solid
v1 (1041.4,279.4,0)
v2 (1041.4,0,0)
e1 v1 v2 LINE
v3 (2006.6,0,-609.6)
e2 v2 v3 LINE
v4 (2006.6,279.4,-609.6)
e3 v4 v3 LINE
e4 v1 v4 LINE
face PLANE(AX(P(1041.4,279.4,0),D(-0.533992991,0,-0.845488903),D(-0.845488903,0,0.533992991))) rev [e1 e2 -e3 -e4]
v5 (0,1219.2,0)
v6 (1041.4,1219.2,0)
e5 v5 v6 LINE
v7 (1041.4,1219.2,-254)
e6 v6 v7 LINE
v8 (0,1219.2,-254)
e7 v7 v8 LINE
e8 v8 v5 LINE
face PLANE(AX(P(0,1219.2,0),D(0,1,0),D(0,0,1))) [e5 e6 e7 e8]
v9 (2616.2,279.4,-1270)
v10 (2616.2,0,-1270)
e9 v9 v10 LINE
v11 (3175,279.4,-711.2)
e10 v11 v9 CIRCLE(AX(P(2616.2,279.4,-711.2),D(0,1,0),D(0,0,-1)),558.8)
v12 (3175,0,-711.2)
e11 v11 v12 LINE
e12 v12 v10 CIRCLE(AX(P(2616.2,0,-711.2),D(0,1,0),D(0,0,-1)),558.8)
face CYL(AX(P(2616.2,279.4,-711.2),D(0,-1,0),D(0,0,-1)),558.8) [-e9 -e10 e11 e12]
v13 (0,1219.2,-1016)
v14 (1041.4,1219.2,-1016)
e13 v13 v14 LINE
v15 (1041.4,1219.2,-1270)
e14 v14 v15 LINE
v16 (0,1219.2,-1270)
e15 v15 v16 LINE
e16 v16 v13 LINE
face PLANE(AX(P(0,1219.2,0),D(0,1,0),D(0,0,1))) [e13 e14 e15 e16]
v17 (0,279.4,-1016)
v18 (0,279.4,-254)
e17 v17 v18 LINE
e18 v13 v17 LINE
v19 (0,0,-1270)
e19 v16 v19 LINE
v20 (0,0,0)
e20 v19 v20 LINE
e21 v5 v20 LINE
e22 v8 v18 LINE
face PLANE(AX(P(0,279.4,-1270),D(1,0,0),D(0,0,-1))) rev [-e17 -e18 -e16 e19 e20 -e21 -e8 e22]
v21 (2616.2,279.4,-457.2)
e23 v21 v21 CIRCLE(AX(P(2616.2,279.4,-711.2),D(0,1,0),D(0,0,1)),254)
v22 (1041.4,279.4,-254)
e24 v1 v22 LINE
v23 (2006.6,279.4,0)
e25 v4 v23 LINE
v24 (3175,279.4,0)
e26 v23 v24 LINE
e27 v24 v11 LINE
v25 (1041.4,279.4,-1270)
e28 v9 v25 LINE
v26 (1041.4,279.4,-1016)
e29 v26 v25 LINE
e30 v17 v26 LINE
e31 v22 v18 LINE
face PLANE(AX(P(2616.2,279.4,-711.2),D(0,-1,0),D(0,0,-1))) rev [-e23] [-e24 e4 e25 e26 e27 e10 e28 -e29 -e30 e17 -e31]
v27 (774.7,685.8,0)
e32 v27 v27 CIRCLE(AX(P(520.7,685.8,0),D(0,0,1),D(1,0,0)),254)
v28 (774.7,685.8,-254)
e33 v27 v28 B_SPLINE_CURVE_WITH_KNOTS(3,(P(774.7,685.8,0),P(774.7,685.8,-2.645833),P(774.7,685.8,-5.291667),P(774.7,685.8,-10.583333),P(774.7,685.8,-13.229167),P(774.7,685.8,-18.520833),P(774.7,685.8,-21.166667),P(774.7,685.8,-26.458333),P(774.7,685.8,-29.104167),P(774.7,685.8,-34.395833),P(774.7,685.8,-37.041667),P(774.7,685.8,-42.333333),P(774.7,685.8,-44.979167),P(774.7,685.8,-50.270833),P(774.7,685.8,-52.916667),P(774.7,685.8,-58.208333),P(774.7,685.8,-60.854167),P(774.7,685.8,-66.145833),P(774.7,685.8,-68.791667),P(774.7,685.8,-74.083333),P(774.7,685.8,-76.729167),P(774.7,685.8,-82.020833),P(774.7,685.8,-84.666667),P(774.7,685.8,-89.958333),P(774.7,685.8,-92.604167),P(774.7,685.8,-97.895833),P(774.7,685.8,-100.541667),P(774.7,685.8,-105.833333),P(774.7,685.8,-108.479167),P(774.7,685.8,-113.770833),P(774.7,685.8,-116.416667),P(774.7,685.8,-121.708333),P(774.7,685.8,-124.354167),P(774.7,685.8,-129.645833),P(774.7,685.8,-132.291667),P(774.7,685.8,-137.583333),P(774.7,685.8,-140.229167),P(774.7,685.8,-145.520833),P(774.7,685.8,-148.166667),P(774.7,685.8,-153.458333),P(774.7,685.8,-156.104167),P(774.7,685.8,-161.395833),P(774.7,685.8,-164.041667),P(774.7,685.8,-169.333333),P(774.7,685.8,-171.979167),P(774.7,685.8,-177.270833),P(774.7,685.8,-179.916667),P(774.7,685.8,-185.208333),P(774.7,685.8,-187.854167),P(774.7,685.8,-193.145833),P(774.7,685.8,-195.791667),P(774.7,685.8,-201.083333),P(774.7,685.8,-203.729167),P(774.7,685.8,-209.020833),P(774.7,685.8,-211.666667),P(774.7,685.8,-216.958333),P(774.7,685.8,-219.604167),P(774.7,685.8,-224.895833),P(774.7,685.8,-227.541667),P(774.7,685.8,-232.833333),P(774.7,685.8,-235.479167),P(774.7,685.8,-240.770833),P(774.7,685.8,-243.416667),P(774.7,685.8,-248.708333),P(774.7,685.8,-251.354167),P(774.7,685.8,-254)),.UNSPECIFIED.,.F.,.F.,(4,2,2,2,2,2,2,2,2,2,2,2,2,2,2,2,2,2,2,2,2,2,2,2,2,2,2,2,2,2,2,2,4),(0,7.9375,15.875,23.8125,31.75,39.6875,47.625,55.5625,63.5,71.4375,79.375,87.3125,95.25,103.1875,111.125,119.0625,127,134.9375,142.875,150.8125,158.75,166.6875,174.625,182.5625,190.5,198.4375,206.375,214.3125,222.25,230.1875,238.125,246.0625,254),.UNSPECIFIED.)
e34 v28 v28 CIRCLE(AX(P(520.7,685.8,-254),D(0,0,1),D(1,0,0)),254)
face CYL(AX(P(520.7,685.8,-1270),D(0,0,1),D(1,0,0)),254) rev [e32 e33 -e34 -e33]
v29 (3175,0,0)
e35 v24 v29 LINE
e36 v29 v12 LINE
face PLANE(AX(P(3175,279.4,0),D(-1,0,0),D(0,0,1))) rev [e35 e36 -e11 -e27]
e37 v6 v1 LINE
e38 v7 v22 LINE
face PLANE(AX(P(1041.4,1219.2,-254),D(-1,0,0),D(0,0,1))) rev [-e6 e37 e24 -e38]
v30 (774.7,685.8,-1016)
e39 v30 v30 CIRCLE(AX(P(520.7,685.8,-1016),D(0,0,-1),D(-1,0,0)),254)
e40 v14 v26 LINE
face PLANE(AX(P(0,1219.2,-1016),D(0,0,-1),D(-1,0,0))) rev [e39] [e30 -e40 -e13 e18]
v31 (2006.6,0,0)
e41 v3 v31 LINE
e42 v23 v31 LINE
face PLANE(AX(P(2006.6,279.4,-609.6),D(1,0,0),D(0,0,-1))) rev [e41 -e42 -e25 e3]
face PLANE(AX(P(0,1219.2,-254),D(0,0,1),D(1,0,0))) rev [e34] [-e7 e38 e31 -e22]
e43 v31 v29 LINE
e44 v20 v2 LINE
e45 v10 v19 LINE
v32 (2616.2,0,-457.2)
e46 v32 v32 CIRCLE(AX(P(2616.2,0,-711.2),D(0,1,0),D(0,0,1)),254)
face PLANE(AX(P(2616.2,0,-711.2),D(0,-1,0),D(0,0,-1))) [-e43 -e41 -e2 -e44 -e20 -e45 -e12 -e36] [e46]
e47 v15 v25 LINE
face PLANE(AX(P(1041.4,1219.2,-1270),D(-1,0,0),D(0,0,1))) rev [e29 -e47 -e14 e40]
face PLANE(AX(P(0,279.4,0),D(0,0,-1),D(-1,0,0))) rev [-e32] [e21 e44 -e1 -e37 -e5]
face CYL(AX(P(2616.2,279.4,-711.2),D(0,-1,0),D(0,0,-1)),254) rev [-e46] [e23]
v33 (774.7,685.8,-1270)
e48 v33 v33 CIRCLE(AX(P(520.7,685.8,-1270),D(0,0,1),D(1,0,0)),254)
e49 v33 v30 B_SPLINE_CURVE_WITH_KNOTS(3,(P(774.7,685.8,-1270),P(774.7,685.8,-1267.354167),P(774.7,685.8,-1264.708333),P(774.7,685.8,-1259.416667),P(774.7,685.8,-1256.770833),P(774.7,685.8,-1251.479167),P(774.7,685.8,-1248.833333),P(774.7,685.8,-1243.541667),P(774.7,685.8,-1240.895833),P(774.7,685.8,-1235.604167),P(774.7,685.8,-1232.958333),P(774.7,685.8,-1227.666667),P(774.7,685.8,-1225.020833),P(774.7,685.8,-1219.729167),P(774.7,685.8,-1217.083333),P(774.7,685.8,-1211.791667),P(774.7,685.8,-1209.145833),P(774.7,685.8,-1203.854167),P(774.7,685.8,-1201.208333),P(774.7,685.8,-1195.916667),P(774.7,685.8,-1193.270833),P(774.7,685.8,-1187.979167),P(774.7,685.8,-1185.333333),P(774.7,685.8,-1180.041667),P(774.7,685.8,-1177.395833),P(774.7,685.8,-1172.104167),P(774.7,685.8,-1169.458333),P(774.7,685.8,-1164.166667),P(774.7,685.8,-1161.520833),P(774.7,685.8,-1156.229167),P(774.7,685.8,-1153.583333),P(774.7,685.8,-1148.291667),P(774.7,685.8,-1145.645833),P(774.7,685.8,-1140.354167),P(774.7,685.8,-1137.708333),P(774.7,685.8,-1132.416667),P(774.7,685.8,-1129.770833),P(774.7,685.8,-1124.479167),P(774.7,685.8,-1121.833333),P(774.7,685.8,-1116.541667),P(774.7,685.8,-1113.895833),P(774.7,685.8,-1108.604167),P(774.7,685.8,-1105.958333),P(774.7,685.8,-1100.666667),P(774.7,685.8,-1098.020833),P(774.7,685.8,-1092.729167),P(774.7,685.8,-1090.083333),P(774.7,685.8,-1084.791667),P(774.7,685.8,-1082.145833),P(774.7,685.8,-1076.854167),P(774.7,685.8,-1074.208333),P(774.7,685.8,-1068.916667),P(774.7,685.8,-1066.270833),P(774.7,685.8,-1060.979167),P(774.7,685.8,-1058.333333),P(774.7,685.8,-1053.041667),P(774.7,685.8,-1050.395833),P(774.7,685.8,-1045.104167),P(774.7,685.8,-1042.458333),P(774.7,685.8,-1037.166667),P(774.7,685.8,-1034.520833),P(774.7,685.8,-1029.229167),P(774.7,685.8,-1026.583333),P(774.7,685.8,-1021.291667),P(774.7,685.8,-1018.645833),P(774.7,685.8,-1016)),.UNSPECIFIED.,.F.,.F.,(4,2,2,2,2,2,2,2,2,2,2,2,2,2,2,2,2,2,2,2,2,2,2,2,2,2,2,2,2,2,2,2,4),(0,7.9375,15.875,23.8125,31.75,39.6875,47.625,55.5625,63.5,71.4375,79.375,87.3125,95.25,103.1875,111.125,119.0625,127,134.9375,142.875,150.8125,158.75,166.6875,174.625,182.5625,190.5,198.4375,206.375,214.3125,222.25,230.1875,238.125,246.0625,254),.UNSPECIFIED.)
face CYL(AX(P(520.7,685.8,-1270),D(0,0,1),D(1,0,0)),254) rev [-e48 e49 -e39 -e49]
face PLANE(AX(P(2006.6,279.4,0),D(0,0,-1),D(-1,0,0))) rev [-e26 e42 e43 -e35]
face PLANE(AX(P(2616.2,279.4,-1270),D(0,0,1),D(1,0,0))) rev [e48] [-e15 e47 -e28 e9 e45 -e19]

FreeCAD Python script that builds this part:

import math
import FreeCAD as App
import Part
import Sketcher
Q = App.Units.Quantity

doc = App.newDocument("Part")
body = doc.addObject("PartDesign::Body", "Body")

sketch1 = doc.addObject("Sketcher::SketchObject", "Sketch")
body.addObject(sketch1)
sketch1.AttachmentSupport = (doc.XZ_Plane, [""])
sketch1.MapMode = "FlatFace"
sketch1.addGeometry(Part.LineSegment(App.Vector(0, 0, 0), App.Vector(1041, 0, 0)), False)
sketch1.addGeometry(Part.LineSegment(App.Vector(1041, 0, 0), App.Vector(2007, -610, 0)), False)
sketch1.addGeometry(Part.LineSegment(App.Vector(2007, -610, 0), App.Vector(2007, 0, 0)), False)
sketch1.addGeometry(Part.LineSegment(App.Vector(2007, 0, 0), App.Vector(3175, 0, 0)), False)
sketch1.addGeometry(Part.LineSegment(App.Vector(3175, 0, 0), App.Vector(3175, -711, 0)), False)
sketch1.addGeometry(Part.ArcOfCircle(Part.Circle(App.Vector(2616, -711, 0), App.Vector(0, 0, 1), 559), math.radians(-90), math.radians(0)), False)
sketch1.addGeometry(Part.LineSegment(App.Vector(2616, -1270, 0), App.Vector(0, -1270, 0)), False)
sketch1.addGeometry(Part.LineSegment(App.Vector(0, -1270, 0), App.Vector(0, 0, 0)), False)
sketch1.addGeometry(Part.Circle(App.Vector(2616, -711, 0), App.Vector(0, 0, 1), 254), False)
sketch1.addConstraint(Sketcher.Constraint("Coincident", 0, 2, 1, 1))
sketch1.addConstraint(Sketcher.Constraint("Coincident", 1, 2, 2, 1))
sketch1.addConstraint(Sketcher.Constraint("Coincident", 2, 2, 3, 1))
sketch1.addConstraint(Sketcher.Constraint("Coincident", 3, 2, 4, 1))
sketch1.addConstraint(Sketcher.Constraint("Tangent", 4, 2, 5, 2))
sketch1.addConstraint(Sketcher.Constraint("Tangent", 5, 1, 6, 1))
sketch1.addConstraint(Sketcher.Constraint("Coincident", 6, 2, 7, 1))
sketch1.addConstraint(Sketcher.Constraint("Coincident", 7, 2, 0, 1))
sketch1.addConstraint(Sketcher.Constraint("Horizontal", 0))
sketch1.addConstraint(Sketcher.Constraint("Vertical", 2))
sketch1.addConstraint(Sketcher.Constraint("Horizontal", 3))
sketch1.addConstraint(Sketcher.Constraint("Vertical", 4))
sketch1.addConstraint(Sketcher.Constraint("Horizontal", 6))
sketch1.addConstraint(Sketcher.Constraint("Vertical", 7))
sketch1.addConstraint(Sketcher.Constraint("Coincident", 7, 2, -1, 1))
sketch1.addConstraint(Sketcher.Constraint("Coincident", 8, 3, 5, 3))
sketch1.addConstraint(Sketcher.Constraint("PointOnObject", 2, 2, -1))
sketch1.addConstraint(Sketcher.Constraint("Diameter", 8, Q("20 in")))
sketch1.addConstraint(Sketcher.Constraint("Radius", 5, Q("22 in")))
sketch1.addConstraint(Sketcher.Constraint("DistanceX", 0, 1, 0, 2, Q("41 in")))
sketch1.addConstraint(Sketcher.Constraint("DistanceX", 3, 1, 3, 2, Q("46 in")))
sketch1.addConstraint(Sketcher.Constraint("DistanceX", 6, 2, 6, 1, Q("103 in")))
sketch1.addConstraint(Sketcher.Constraint("DistanceY", 2, 1, 2, 2, Q("24 in")))
sketch1.addConstraint(Sketcher.Constraint("DistanceY", 4, 2, 4, 1, Q("28 in")))
pad1 = doc.addObject("PartDesign::Pad", "Pad")
body.addObject(pad1)
pad1.Profile = sketch1
pad1.Length = Q("11 in")
pad1.Reversed = True

sketch2 = doc.addObject("Sketcher::SketchObject", "Sketch001")
body.addObject(sketch2)
sketch2.AttachmentSupport = (doc.XZ_Plane, [""])
sketch2.MapMode = "FlatFace"
sketch2.AttachmentOffset = App.Placement(App.Vector(0, 0, -11 * 25.4), App.Rotation())
sketch2.addGeometry(Part.LineSegment(App.Vector(0, -1270, 0), App.Vector(0, -1016, 0)), False)
sketch2.addGeometry(Part.LineSegment(App.Vector(0, -1016, 0), App.Vector(1041, -1016, 0)), False)
sketch2.addGeometry(Part.LineSegment(App.Vector(1041, -1016, 0), App.Vector(1041, -1270, 0)), False)
sketch2.addGeometry(Part.LineSegment(App.Vector(1041, -1270, 0), App.Vector(0, -1270, 0)), False)
sketch2.addGeometry(Part.LineSegment(App.Vector(0, -254, 0), App.Vector(0, 0, 0)), False)
sketch2.addGeometry(Part.LineSegment(App.Vector(0, 0, 0), App.Vector(1041, 0, 0)), False)
sketch2.addGeometry(Part.LineSegment(App.Vector(1041, 0, 0), App.Vector(1041, -254, 0)), False)
sketch2.addGeometry(Part.LineSegment(App.Vector(1041, -254, 0), App.Vector(0, -254, 0)), False)
sketch2.addConstraint(Sketcher.Constraint("Coincident", 0, 2, 1, 1))
sketch2.addConstraint(Sketcher.Constraint("Coincident", 1, 2, 2, 1))
sketch2.addConstraint(Sketcher.Constraint("Coincident", 2, 2, 3, 1))
sketch2.addConstraint(Sketcher.Constraint("Coincident", 3, 2, 0, 1))
sketch2.addConstraint(Sketcher.Constraint("Coincident", 4, 2, 5, 1))
sketch2.addConstraint(Sketcher.Constraint("Coincident", 5, 2, 6, 1))
sketch2.addConstraint(Sketcher.Constraint("Coincident", 6, 2, 7, 1))
sketch2.addConstraint(Sketcher.Constraint("Coincident", 7, 2, 4, 1))
sketch2.addConstraint(Sketcher.Constraint("Vertical", 0))
sketch2.addConstraint(Sketcher.Constraint("Horizontal", 1))
sketch2.addConstraint(Sketcher.Constraint("Vertical", 2))
sketch2.addConstraint(Sketcher.Constraint("Horizontal", 3))
sketch2.addConstraint(Sketcher.Constraint("Vertical", 4))
sketch2.addConstraint(Sketcher.Constraint("Horizontal", 5))
sketch2.addConstraint(Sketcher.Constraint("Vertical", 6))
sketch2.addConstraint(Sketcher.Constraint("Horizontal", 7))
sketch2.addConstraint(Sketcher.Constraint("Coincident", 4, 2, -1, 1))
sketch2.addConstraint(Sketcher.Constraint("PointOnObject", 0, 2, -2))
sketch2.addConstraint(Sketcher.Constraint("Vertical", 2, 2, 5, 2))
sketch2.addConstraint(Sketcher.Constraint("Equal", 2, 4))
sketch2.addConstraint(Sketcher.Constraint("DistanceX", 1, 1, 1, 2, Q("41 in")))
sketch2.addConstraint(Sketcher.Constraint("DistanceY", 0, 1, 0, 2, Q("10 in")))
sketch2.addConstraint(Sketcher.Constraint("DistanceY", 0, 2, -1, 1, Q("40 in")))
pad2 = doc.addObject("PartDesign::Pad", "Pad001")
body.addObject(pad2)
pad2.Profile = sketch2
pad2.Length = Q("37 in")
pad2.Reversed = True

sketch3 = doc.addObject("Sketcher::SketchObject", "Sketch002")
body.addObject(sketch3)
sketch3.AttachmentSupport = (doc.XY_Plane, [""])
sketch3.MapMode = "FlatFace"
sketch3.addGeometry(Part.Circle(App.Vector(521, 686, 0), App.Vector(0, 0, 1), 254), False)
sketch3.addConstraint(Sketcher.Constraint("Diameter", 0, Q("20 in")))
sketch3.addConstraint(Sketcher.Constraint("DistanceY", -1, 1, 0, 3, Q("27 in")))
sketch3.addConstraint(Sketcher.Constraint("DistanceX", -1, 1, 0, 3, Q("20.5 in")))
pocket1 = doc.addObject("PartDesign::Pocket", "Pocket")
body.addObject(pocket1)
pocket1.Profile = sketch3
pocket1.Length = Q("50 in")

doc.recompute()
